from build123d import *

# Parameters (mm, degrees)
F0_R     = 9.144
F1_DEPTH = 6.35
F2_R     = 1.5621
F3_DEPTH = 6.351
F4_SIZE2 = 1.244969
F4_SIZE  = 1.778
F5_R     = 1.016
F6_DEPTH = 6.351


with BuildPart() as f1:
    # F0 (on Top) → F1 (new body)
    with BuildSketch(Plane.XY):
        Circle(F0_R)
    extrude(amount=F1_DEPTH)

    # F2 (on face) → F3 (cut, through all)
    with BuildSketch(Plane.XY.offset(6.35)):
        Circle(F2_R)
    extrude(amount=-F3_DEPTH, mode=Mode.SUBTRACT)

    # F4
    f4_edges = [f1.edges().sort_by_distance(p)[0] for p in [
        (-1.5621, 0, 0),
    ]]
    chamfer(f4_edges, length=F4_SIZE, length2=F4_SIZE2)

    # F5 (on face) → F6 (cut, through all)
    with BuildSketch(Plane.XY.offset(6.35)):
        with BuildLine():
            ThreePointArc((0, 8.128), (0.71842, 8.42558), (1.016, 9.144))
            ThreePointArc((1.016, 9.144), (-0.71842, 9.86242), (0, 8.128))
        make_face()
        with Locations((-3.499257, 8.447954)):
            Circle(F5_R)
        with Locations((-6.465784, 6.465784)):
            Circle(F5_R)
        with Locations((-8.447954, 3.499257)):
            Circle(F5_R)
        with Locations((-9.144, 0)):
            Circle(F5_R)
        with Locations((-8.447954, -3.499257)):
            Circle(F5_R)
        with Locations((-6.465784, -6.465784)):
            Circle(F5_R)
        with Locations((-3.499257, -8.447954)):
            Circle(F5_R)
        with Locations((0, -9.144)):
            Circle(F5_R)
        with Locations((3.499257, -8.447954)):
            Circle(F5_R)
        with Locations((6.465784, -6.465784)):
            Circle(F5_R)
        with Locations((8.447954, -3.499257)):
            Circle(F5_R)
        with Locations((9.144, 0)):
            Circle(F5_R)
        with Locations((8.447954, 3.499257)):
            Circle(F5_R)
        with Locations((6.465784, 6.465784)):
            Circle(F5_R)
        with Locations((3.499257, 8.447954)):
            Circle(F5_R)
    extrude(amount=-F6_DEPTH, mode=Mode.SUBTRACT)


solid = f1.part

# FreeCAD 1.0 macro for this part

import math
import FreeCAD as App
import Part
import Sketcher

V = App.Vector
Q = App.Units.Quantity


def edges_at(feature, points):
    """Names of the edges that pass closest to the given points."""
    edges = feature.Shape.Edges
    near = lambda p: min(range(len(edges)), key=lambda i: edges[i].distToShape(Part.Vertex(*p))[0])
    return sorted({f"Edge{near(p) + 1}" for p in points})

doc = App.newDocument("Part")
body = doc.addObject("PartDesign::Body", "Body")

# Sketch on XY plane
sketch1 = body.newObject("Sketcher::SketchObject", "Sketch")
sketch1.AttachmentSupport = (doc.getObject("XY_Plane"), [""])
sketch1.MapMode = "FlatFace"
sketch1.addGeometry(Part.Circle(V(0, 0, 0), V(0, 0, 1), 9), False)
sketch1.addConstraint([
    Sketcher.Constraint("Coincident", 0, 3, -1, 1),
    Sketcher.Constraint("Diameter", 0, Q("0.72 in")),
])
pad1 = body.newObject("PartDesign::Pad", "Pad")
pad1.Profile = sketch1
pad1.Length = Q("0.25 in")

# Sketch on XY plane
sketch2 = body.newObject("Sketcher::SketchObject", "Sketch001")
sketch2.AttachmentSupport = (doc.getObject("XY_Plane"), [""])
sketch2.MapMode = "FlatFace"
sketch2.AttachmentOffset = App.Placement(V(0, 0, 0.25 * 25.4), App.Rotation())
sketch2.addGeometry(Part.Circle(V(0, 0, 0), V(0, 0, 1), 1.6), False)
sketch2.addConstraint([
    Sketcher.Constraint("Coincident", 0, 3, -1, 1),
    Sketcher.Constraint("Diameter", 0, Q("0.123 in")),
])
pocket1 = body.newObject("PartDesign::Pocket", "Pocket")
pocket1.Profile = sketch2
pocket1.Type = "ThroughAll"
doc.recompute()

chamfer = body.newObject("PartDesign::Chamfer", "Chamfer")
chamfer.Base = (pocket1, edges_at(pocket1, [(-1.562, 0, 0)]))
chamfer.ChamferType = "Two distances"
chamfer.Size = Q("0.07 in")
chamfer.Size2 = 1.244969

# Sketch on XY plane
sketch3 = body.newObject("Sketcher::SketchObject", "Sketch002")
sketch3.AttachmentSupport = (doc.getObject("XY_Plane"), [""])
sketch3.MapMode = "FlatFace"
sketch3.AttachmentOffset = App.Placement(V(0, 0, 0.25 * 25.4), App.Rotation())
sketch3.addGeometry([
    Part.ArcOfCircle(Part.Circle(V(0, 9.1, 0), V(0, 0, 1), 1), math.radians(-90), math.radians(0)),  # 0
    Part.ArcOfCircle(Part.Circle(V(0, 9.1, 0), V(0, 0, 1), 1), math.radians(0), math.radians(270)),  # 1
    Part.Circle(V(-3.5, 8.4, 0), V(0, 0, 1), 1),  # 2
    Part.Circle(V(-6.5, 6.5, 0), V(0, 0, 1), 1),  # 3
    Part.Circle(V(-8.4, 3.5, 0), V(0, 0, 1), 1),  # 4
    Part.Circle(V(-9.1, 0, 0), V(0, 0, 1), 1),  # 5
    Part.Circle(V(-8.4, -3.5, 0), V(0, 0, 1), 1),  # 6
    Part.Circle(V(-6.5, -6.5, 0), V(0, 0, 1), 1),  # 7
    Part.Circle(V(-3.5, -8.4, 0), V(0, 0, 1), 1),  # 8
    Part.Circle(V(0, -9.1, 0), V(0, 0, 1), 1),  # 9
    Part.Circle(V(3.5, -8.4, 0), V(0, 0, 1), 1),  # 10
    Part.Circle(V(6.5, -6.5, 0), V(0, 0, 1), 1),  # 11
    Part.Circle(V(8.4, -3.5, 0), V(0, 0, 1), 1),  # 12
    Part.Circle(V(9.1, 0, 0), V(0, 0, 1), 1),  # 13
    Part.Circle(V(8.4, 3.5, 0), V(0, 0, 1), 1),  # 14
    Part.Circle(V(6.5, 6.5, 0), V(0, 0, 1), 1),  # 15
    Part.Circle(V(3.5, 8.4, 0), V(0, 0, 1), 1),  # 16
], False)
sketch3.addConstraint([
    Sketcher.Constraint("Tangent", 0, 1, 1, 2),
    Sketcher.Constraint("Coincident", 1, 1, 0, 2),
    Sketcher.Constraint("Equal", 1, 2),
    Sketcher.Constraint("Equal", 2, 3),
    Sketcher.Constraint("Equal", 3, 4),
    Sketcher.Constraint("Equal", 4, 5),
    Sketcher.Constraint("Equal", 5, 6),
    Sketcher.Constraint("Equal", 6, 7),
    Sketcher.Constraint("Equal", 7, 8),
    Sketcher.Constraint("Equal", 8, 9),
    Sketcher.Constraint("Equal", 9, 10),
    Sketcher.Constraint("Equal", 10, 11),
    Sketcher.Constraint("Equal", 11, 12),
    Sketcher.Constraint("Equal", 12, 13),
    Sketcher.Constraint("Equal", 13, 14),
    Sketcher.Constraint("Equal", 14, 15),
    Sketcher.Constraint("Equal", 15, 16),
    Sketcher.Constraint("Symmetric", 0, 3, 9, 3, -1, 1),
    Sketcher.Constraint("Symmetric", 2, 3, 10, 3, -1, 1),
    Sketcher.Constraint("Symmetric", 3, 3, 11, 3, -1, 1),
    Sketcher.Constraint("Symmetric", 4, 3, 12, 3, -1, 1),
    Sketcher.Constraint("Symmetric", 5, 3, 13, 3, -1, 1),
    Sketcher.Constraint("Symmetric", 6, 3, 14, 3, -1, 1),
    Sketcher.Constraint("Symmetric", 7, 3, 15, 3, -1, 1),
    Sketcher.Constraint("Symmetric", 8, 3, 16, 3, -1, 1),
    Sketcher.Constraint("Symmetric", 8, 3, 10, 3, -2),
    Sketcher.Constraint("Symmetric", 7, 3, 11, 3, -2),
    Sketcher.Constraint("Symmetric", 6, 3, 12, 3, -2),
    Sketcher.Constraint("PointOnObject", 0, 3, -2),
    Sketcher.Constraint("PointOnObject", 5, 3, -1),
    Sketcher.Constraint("PointOnObject", 0, 1, -2),
    Sketcher.Constraint("Horizontal", 0, 3, 1, 1),
    Sketcher.Constraint("Diameter", 2, Q("0.08 in")),
    Sketcher.Constraint("DistanceY", -1, 1, 0, 3, Q("0.3600001 in")),
    Sketcher.Constraint("DistanceX", 5, 3, -1, 1, Q("0.36 in")),
    Sketcher.Constraint("DistanceY", 3, 3, 2, 3, 1.98217),
    Sketcher.Constraint("DistanceX", 4, 3, 3, 3, 1.98217),
    Sketcher.Constraint("DistanceY", 6, 3, 3, 3, 9.965041),
    Sketcher.Constraint("DistanceX", 7, 3, 10, 3, 9.965041),
    Sketcher.Constraint("DistanceX", 0, 3, 16, 3, 3.499259),
    Sketcher.Constraint("DistanceY", -1, 1, 2, 3, 8.447954),
])
pocket2 = body.newObject("PartDesign::Pocket", "Pocket001")
pocket2.Profile = sketch3
pocket2.Type = "ThroughAll"

doc.recompute()
